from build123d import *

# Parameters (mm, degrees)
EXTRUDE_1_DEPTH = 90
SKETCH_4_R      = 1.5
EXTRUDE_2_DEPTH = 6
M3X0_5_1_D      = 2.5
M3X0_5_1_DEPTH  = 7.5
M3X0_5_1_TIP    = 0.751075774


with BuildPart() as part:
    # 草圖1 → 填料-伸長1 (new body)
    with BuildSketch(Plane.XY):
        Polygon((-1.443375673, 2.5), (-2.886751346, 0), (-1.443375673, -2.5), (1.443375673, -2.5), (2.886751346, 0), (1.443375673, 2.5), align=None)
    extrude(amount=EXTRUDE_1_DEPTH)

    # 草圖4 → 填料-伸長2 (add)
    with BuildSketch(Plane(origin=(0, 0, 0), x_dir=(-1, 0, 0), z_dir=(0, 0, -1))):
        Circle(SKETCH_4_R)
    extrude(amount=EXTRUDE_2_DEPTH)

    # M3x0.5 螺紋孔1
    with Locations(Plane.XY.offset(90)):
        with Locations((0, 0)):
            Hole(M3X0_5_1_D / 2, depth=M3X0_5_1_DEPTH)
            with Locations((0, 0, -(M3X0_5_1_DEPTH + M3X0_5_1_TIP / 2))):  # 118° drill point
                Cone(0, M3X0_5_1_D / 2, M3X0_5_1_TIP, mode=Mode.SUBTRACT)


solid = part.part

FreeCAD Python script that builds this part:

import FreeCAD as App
import Part
import Sketcher
Q = App.Units.Quantity

doc = App.newDocument("Part")
body = doc.addObject("PartDesign::Body", "Body")

# Sketch on XY plane
sketch1 = doc.addObject("Sketcher::SketchObject", "Sketch")
body.addObject(sketch1)
sketch1.AttachmentSupport = (doc.XY_Plane, [""])
sketch1.MapMode = "FlatFace"
sketch1.addGeometry([
    Part.LineSegment(App.Vector(-1.4, 2.5, 0), App.Vector(-2.9, 0, 0)),  # 0
    Part.LineSegment(App.Vector(-2.9, 0, 0), App.Vector(-1.4, -2.5, 0)),  # 1
    Part.LineSegment(App.Vector(-1.4, -2.5, 0), App.Vector(1.4, -2.5, 0)),  # 2
    Part.LineSegment(App.Vector(1.4, -2.5, 0), App.Vector(2.9, 0, 0)),  # 3
    Part.LineSegment(App.Vector(2.9, 0, 0), App.Vector(1.4, 2.5, 0)),  # 4
    Part.LineSegment(App.Vector(1.4, 2.5, 0), App.Vector(-1.4, 2.5, 0)),  # 5
], False)
sketch1.addConstraint([
    Sketcher.Constraint("Coincident", 0, 2, 1, 1),
    Sketcher.Constraint("Coincident", 1, 2, 2, 1),
    Sketcher.Constraint("Coincident", 2, 2, 3, 1),
    Sketcher.Constraint("Coincident", 3, 2, 4, 1),
    Sketcher.Constraint("Coincident", 4, 2, 5, 1),
    Sketcher.Constraint("Coincident", 5, 2, 0, 1),
    Sketcher.Constraint("Horizontal", 2),
    Sketcher.Constraint("Horizontal", 5),
    Sketcher.Constraint("Symmetric", 0, 2, 3, 2, -1, 1),
    Sketcher.Constraint("Symmetric", 1, 2, 4, 2, -1, 1),
    Sketcher.Constraint("PointOnObject", 0, 2, -1),
    Sketcher.Constraint("Parallel", 0, 3),
    Sketcher.Constraint("Vertical", 2, 2, 4, 2),
    Sketcher.Constraint("Angle", 0, Q("-120 deg")),
    Sketcher.Constraint("DistanceY", 2, 2, 4, 2, Q("5 mm")),
    Sketcher.Constraint("DistanceX", 2, 1, 2, 2, Q("2.886751 mm")),
])
pad1 = doc.addObject("PartDesign::Pad", "Pad")
body.addObject(pad1)
pad1.Profile = sketch1
pad1.Length = 90

# Sketch on XY plane
sketch2 = doc.addObject("Sketcher::SketchObject", "Sketch001")
body.addObject(sketch2)
sketch2.AttachmentSupport = (doc.XY_Plane, [""])
sketch2.MapMode = "FlatFace"
sketch2.addGeometry(Part.Circle(App.Vector(0, 0, 0), App.Vector(0, 0, 1), 1.5), False)
sketch2.addConstraint([
    Sketcher.Constraint("Coincident", 0, 3, -1, 1),
    Sketcher.Constraint("Diameter", 0, Q("3 mm")),
])
pad2 = doc.addObject("PartDesign::Pad", "Pad001")
body.addObject(pad2)
pad2.Profile = sketch2
pad2.Length = 6
pad2.Reversed = True

# Sketch on XY plane
sketch3 = doc.addObject("Sketcher::SketchObject", "Sketch002")
body.addObject(sketch3)
sketch3.AttachmentSupport = (doc.XY_Plane, [""])
sketch3.MapMode = "FlatFace"
sketch3.AttachmentOffset = App.Placement(App.Vector(0, 0, 90), App.Rotation())
sketch3.addGeometry(Part.Circle(App.Vector(0, 0, 0), App.Vector(0, 0, 1), 1.2), False)
sketch3.addConstraint([
    Sketcher.Constraint("Coincident", 0, 3, -1, 1),
    Sketcher.Constraint("Diameter", 0, Q("2.5 mm")),
])
doc.recompute()
hole = doc.addObject("PartDesign::Hole", "Hole")
body.addObject(hole)
hole.Profile = sketch3
hole.ThreadType = "None"
hole.Diameter = 2.5
hole.DepthType = "Dimension"
hole.Depth = 7.5
hole.DrillPoint = "Angled"
hole.DrillPointAngle = 118

doc.recompute()
